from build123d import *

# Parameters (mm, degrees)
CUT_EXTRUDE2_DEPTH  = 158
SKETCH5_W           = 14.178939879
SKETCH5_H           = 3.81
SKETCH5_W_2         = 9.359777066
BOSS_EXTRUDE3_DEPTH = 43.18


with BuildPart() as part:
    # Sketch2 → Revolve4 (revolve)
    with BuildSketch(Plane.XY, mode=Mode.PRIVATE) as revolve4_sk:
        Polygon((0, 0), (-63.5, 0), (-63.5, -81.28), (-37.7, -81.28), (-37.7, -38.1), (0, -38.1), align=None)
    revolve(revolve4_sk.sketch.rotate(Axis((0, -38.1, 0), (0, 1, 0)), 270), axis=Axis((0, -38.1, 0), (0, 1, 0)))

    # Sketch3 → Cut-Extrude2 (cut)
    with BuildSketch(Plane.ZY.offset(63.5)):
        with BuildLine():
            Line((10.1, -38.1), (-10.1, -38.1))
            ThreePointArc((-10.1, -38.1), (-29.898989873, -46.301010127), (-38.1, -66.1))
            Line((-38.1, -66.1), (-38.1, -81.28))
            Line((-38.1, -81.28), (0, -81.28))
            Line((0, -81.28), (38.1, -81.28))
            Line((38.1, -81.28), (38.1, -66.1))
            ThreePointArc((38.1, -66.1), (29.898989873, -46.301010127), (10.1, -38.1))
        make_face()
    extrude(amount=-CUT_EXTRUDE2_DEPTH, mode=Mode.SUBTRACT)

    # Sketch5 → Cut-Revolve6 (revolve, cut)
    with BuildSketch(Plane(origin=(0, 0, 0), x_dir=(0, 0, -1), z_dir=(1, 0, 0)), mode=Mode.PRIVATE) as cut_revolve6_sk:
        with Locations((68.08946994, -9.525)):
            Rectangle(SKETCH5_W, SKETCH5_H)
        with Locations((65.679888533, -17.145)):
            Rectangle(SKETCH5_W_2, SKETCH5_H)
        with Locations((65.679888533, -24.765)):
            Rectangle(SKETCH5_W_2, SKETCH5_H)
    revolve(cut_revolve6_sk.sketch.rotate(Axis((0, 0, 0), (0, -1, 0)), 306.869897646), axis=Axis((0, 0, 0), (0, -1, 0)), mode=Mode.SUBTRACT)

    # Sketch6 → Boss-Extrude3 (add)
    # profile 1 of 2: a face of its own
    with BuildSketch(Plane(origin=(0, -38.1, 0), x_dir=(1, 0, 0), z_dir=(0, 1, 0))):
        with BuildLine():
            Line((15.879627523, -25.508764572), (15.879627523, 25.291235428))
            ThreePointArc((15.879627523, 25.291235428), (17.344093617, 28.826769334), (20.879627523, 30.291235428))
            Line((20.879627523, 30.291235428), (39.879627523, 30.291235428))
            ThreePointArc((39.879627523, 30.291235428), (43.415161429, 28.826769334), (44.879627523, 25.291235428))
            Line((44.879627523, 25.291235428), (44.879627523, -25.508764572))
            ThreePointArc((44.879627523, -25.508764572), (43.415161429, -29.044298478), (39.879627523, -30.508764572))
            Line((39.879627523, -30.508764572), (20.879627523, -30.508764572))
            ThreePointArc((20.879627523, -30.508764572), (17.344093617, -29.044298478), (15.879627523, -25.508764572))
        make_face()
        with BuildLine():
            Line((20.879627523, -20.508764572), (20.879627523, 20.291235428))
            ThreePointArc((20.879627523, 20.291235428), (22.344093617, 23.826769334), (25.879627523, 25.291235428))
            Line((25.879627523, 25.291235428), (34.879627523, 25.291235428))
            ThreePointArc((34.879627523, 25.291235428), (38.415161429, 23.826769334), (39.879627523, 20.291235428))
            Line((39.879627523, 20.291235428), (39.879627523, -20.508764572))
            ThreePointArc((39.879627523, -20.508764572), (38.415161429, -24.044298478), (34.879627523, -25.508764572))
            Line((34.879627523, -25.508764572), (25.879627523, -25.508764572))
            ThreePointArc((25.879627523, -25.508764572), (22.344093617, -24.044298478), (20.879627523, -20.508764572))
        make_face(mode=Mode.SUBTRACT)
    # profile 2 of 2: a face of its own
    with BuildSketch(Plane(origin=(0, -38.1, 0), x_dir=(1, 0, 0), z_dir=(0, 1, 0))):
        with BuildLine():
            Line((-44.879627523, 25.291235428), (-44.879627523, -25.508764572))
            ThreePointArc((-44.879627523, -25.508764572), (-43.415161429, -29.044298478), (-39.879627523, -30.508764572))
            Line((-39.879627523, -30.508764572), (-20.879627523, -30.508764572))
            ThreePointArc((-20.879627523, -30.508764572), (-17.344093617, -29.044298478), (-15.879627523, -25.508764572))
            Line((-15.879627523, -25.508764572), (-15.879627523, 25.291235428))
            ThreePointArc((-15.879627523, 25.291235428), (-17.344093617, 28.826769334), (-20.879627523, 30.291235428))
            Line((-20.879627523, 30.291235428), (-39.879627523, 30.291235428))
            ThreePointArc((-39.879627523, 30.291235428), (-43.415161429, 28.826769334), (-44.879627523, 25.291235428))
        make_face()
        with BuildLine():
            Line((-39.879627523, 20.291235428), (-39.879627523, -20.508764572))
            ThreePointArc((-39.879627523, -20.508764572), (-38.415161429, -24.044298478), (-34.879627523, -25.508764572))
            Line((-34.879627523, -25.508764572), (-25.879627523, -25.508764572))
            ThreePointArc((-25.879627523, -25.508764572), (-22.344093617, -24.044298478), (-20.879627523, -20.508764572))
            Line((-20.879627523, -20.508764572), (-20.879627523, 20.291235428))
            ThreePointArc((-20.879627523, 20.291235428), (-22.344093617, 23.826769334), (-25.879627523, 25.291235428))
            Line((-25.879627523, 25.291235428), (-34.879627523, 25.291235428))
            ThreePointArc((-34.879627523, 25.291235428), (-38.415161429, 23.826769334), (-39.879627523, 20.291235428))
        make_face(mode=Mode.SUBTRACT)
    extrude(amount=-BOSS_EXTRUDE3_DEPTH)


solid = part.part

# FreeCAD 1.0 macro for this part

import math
import FreeCAD as App
import Part
import Sketcher

doc = App.newDocument("Part")
body = doc.addObject("PartDesign::Body", "Body")

# Sketch on XY plane
sketch1 = body.newObject("Sketcher::SketchObject", "Sketch")
sketch1.AttachmentSupport = (doc.getObject("XY_Plane"), [""])
sketch1.MapMode = "FlatFace"
sketch1.addGeometry([
    Part.LineSegment(App.Vector(0, 0, 0), App.Vector(-64, 0, 0)),  # 0
    Part.LineSegment(App.Vector(-64, 0, 0), App.Vector(-64, -81, 0)),  # 1
    Part.LineSegment(App.Vector(-64, -81, 0), App.Vector(-38, -81, 0)),  # 2
    Part.LineSegment(App.Vector(-38, -81, 0), App.Vector(-38, -38, 0)),  # 3
    Part.LineSegment(App.Vector(-38, -38, 0), App.Vector(0, -38, 0)),  # 4
    Part.LineSegment(App.Vector(0, -38, 0), App.Vector(0, 0, 0)),  # 5
], False)
sketch1.addConstraint([
    Sketcher.Constraint("Coincident", 0, 2, 1, 1),
    Sketcher.Constraint("Coincident", 1, 2, 2, 1),
    Sketcher.Constraint("Coincident", 2, 2, 3, 1),
    Sketcher.Constraint("Coincident", 3, 2, 4, 1),
    Sketcher.Constraint("Coincident", 4, 2, 5, 1),
    Sketcher.Constraint("Coincident", 5, 2, 0, 1),
    Sketcher.Constraint("Horizontal", 0),
    Sketcher.Constraint("Vertical", 1),
    Sketcher.Constraint("Horizontal", 2),
    Sketcher.Constraint("Vertical", 3),
    Sketcher.Constraint("Horizontal", 4),
    Sketcher.Constraint("Vertical", 5),
    Sketcher.Constraint("Coincident", 5, 2, -1, 1),
    Sketcher.Constraint("DistanceX", 0, 2, 0, 1, 63.5),
    Sketcher.Constraint("DistanceX", 2, 1, 2, 2, 25.8),
    Sketcher.Constraint("DistanceY", 5, 1, 5, 2, 38.1),
    Sketcher.Constraint("DistanceY", 1, 2, 1, 1, 81.28),
])
revolution = body.newObject("PartDesign::Revolution", "Revolution")
revolution.Profile = sketch1
revolution.ReferenceAxis = (sketch1, ["V_Axis"])
revolution.Angle = 360

# Sketch on YZ plane
sketch2 = body.newObject("Sketcher::SketchObject", "Sketch001")
sketch2.AttachmentSupport = (doc.getObject("YZ_Plane"), [""])
sketch2.MapMode = "FlatFace"
sketch2.AttachmentOffset = App.Placement(App.Vector(0, 0, -63.5), App.Rotation())
sketch2.addGeometry([
    Part.LineSegment(App.Vector(-38, 10, 0), App.Vector(-38, -10, 0)),  # 0
    Part.ArcOfCircle(Part.Circle(App.Vector(-66, -10, 0), App.Vector(0, 0, 1), 28), math.radians(-90), math.radians(0)),  # 1
    Part.LineSegment(App.Vector(-66, -38, 0), App.Vector(-81, -38, 0)),  # 2
    Part.LineSegment(App.Vector(-81, -38, 0), App.Vector(-81, 38, 0)),  # 3
    Part.LineSegment(App.Vector(-81, 38, 0), App.Vector(-66, 38, 0)),  # 4
    Part.ArcOfCircle(Part.Circle(App.Vector(-66, 10, 0), App.Vector(0, 0, 1), 28), math.radians(0), math.radians(90)),  # 5
], False)
sketch2.addConstraint([
    Sketcher.Constraint("Tangent", 0, 2, 1, 2),
    Sketcher.Constraint("Tangent", 1, 1, 2, 1),
    Sketcher.Constraint("Coincident", 2, 2, 3, 1),
    Sketcher.Constraint("Coincident", 3, 2, 4, 1),
    Sketcher.Constraint("Tangent", 4, 2, 5, 2),
    Sketcher.Constraint("Tangent", 5, 1, 0, 1),
    Sketcher.Constraint("Vertical", 0),
    Sketcher.Constraint("Horizontal", 2),
    Sketcher.Constraint("Vertical", 3),
    Sketcher.Constraint("Horizontal", 4),
    Sketcher.Constraint("Equal", 1, 5),
    Sketcher.Constraint("Radius", 1, 28.0),
    Sketcher.Constraint("DistanceY", 0, 2, 0, 1, 20.2),
    Sketcher.Constraint("DistanceX", 2, 2, 2, 1, 15.18),
    Sketcher.Constraint("DistanceX", 1, 3, -1, 1, 66.1),
    Sketcher.Constraint("DistanceY", 1, 3, -1, 1, 10.1),
])
pocket1 = body.newObject("PartDesign::Pocket", "Pocket")
pocket1.Profile = sketch2
pocket1.Length = 158
pocket1.Reversed = True

# Sketch on YZ plane
sketch3 = body.newObject("Sketcher::SketchObject", "Sketch002")
sketch3.AttachmentSupport = (doc.getObject("YZ_Plane"), [""])
sketch3.MapMode = "FlatFace"
sketch3.addGeometry([
    Part.LineSegment(App.Vector(-7.6, -61, 0), App.Vector(-11.4, -61, 0)),  # 0
    Part.LineSegment(App.Vector(-11.4, -61, 0), App.Vector(-11.4, -75.2, 0)),  # 1
    Part.LineSegment(App.Vector(-11.4, -75.2, 0), App.Vector(-7.6, -75.2, 0)),  # 2
    Part.LineSegment(App.Vector(-7.6, -75.2, 0), App.Vector(-7.6, -61, 0)),  # 3
    Part.LineSegment(App.Vector(-15.2, -61, 0), App.Vector(-19.1, -61, 0)),  # 4
    Part.LineSegment(App.Vector(-19.1, -61, 0), App.Vector(-19.1, -70.4, 0)),  # 5
    Part.LineSegment(App.Vector(-19.1, -70.4, 0), App.Vector(-15.2, -70.4, 0)),  # 6
    Part.LineSegment(App.Vector(-15.2, -70.4, 0), App.Vector(-15.2, -61, 0)),  # 7
    Part.LineSegment(App.Vector(-22.9, -61, 0), App.Vector(-26.7, -61, 0)),  # 8
    Part.LineSegment(App.Vector(-26.7, -61, 0), App.Vector(-26.7, -70.4, 0)),  # 9
    Part.LineSegment(App.Vector(-26.7, -70.4, 0), App.Vector(-22.9, -70.4, 0)),  # 10
    Part.LineSegment(App.Vector(-22.9, -70.4, 0), App.Vector(-22.9, -61, 0)),  # 11
], False)
sketch3.addConstraint([
    Sketcher.Constraint("Coincident", 0, 2, 1, 1),
    Sketcher.Constraint("Coincident", 1, 2, 2, 1),
    Sketcher.Constraint("Coincident", 2, 2, 3, 1),
    Sketcher.Constraint("Coincident", 3, 2, 0, 1),
    Sketcher.Constraint("Coincident", 4, 2, 5, 1),
    Sketcher.Constraint("Coincident", 5, 2, 6, 1),
    Sketcher.Constraint("Coincident", 6, 2, 7, 1),
    Sketcher.Constraint("Coincident", 7, 2, 4, 1),
    Sketcher.Constraint("Coincident", 8, 2, 9, 1),
    Sketcher.Constraint("Coincident", 9, 2, 10, 1),
    Sketcher.Constraint("Coincident", 10, 2, 11, 1),
    Sketcher.Constraint("Coincident", 11, 2, 8, 1),
    Sketcher.Constraint("Horizontal", 0),
    Sketcher.Constraint("Vertical", 1),
    Sketcher.Constraint("Horizontal", 2),
    Sketcher.Constraint("Vertical", 3),
    Sketcher.Constraint("Horizontal", 4),
    Sketcher.Constraint("Vertical", 5),
    Sketcher.Constraint("Horizontal", 6),
    Sketcher.Constraint("Vertical", 7),
    Sketcher.Constraint("Horizontal", 8),
    Sketcher.Constraint("Vertical", 9),
    Sketcher.Constraint("Horizontal", 10),
    Sketcher.Constraint("Vertical", 11),
    Sketcher.Constraint("Horizontal", 3, 2, 4, 2),
    Sketcher.Constraint("Horizontal", 7, 2, 8, 2),
    Sketcher.Constraint("Horizontal", 6, 2, 9, 2),
    Sketcher.Constraint("Equal", 2, 4),
    Sketcher.Constraint("Equal", 6, 8),
    Sketcher.Constraint("DistanceY", 0, 2, -1, 1, 61.0),
    Sketcher.Constraint("DistanceX", 0, 2, 0, 1, 3.81),
    Sketcher.Constraint("DistanceX", 0, 2, -1, 1, 11.43),
    Sketcher.Constraint("DistanceX", 4, 2, -1, 1, 19.05),
    Sketcher.Constraint("DistanceX", 8, 2, -1, 1, 26.67),
    Sketcher.Constraint("DistanceY", 1, 2, 1, 1, 14.17894),
    Sketcher.Constraint("DistanceY", 5, 2, 5, 1, 9.359777),
])
groove = body.newObject("PartDesign::Groove", "Groove")
groove.Profile = sketch3
groove.ReferenceAxis = (sketch3, ["H_Axis"])
groove.Angle = 360

# Sketch on XZ plane
sketch4 = body.newObject("Sketcher::SketchObject", "Sketch003")
sketch4.AttachmentSupport = (doc.getObject("XZ_Plane"), [""])
sketch4.MapMode = "FlatFace"
sketch4.AttachmentOffset = App.Placement(App.Vector(0, 0, 38.1), App.Rotation())
sketch4.addGeometry([
    Part.LineSegment(App.Vector(16, -25, 0), App.Vector(16, 26, 0)),  # 0
    Part.ArcOfCircle(Part.Circle(App.Vector(21, 26, 0), App.Vector(0, 0, 1), 5), math.radians(90), math.radians(180)),  # 1
    Part.LineSegment(App.Vector(21, 31, 0), App.Vector(40, 31, 0)),  # 2
    Part.ArcOfCircle(Part.Circle(App.Vector(40, 26, 0), App.Vector(0, 0, 1), 5), math.radians(0), math.radians(90)),  # 3
    Part.LineSegment(App.Vector(45, 26, 0), App.Vector(45, -25, 0)),  # 4
    Part.ArcOfCircle(Part.Circle(App.Vector(40, -25, 0), App.Vector(0, 0, 1), 5), math.radians(-90), math.radians(0)),  # 5
    Part.LineSegment(App.Vector(40, -30, 0), App.Vector(21, -30, 0)),  # 6
    Part.ArcOfCircle(Part.Circle(App.Vector(21, -25, 0), App.Vector(0, 0, 1), 5), math.radians(180), math.radians(270)),  # 7
    Part.LineSegment(App.Vector(21, 21, 0), App.Vector(21, -20, 0)),  # 8
    Part.ArcOfCircle(Part.Circle(App.Vector(26, -20, 0), App.Vector(0, 0, 1), 5), math.radians(180), math.radians(270)),  # 9
    Part.LineSegment(App.Vector(26, -25, 0), App.Vector(35, -25, 0)),  # 10
    Part.ArcOfCircle(Part.Circle(App.Vector(35, -20, 0), App.Vector(0, 0, 1), 5), math.radians(-90), math.radians(0)),  # 11
    Part.LineSegment(App.Vector(40, -20, 0), App.Vector(40, 21, 0)),  # 12
    Part.ArcOfCircle(Part.Circle(App.Vector(35, 21, 0), App.Vector(0, 0, 1), 5), math.radians(0), math.radians(90)),  # 13
    Part.LineSegment(App.Vector(35, 26, 0), App.Vector(26, 26, 0)),  # 14
    Part.ArcOfCircle(Part.Circle(App.Vector(26, 21, 0), App.Vector(0, 0, 1), 5), math.radians(90), math.radians(180)),  # 15
    Part.LineSegment(App.Vector(-45, -25, 0), App.Vector(-45, 26, 0)),  # 16
    Part.ArcOfCircle(Part.Circle(App.Vector(-40, 26, 0), App.Vector(0, 0, 1), 5), math.radians(90), math.radians(180)),  # 17
    Part.LineSegment(App.Vector(-40, 31, 0), App.Vector(-21, 31, 0)),  # 18
    Part.ArcOfCircle(Part.Circle(App.Vector(-21, 26, 0), App.Vector(0, 0, 1), 5), math.radians(0), math.radians(90)),  # 19
    Part.LineSegment(App.Vector(-16, 26, 0), App.Vector(-16, -25, 0)),  # 20
    Part.ArcOfCircle(Part.Circle(App.Vector(-21, -25, 0), App.Vector(0, 0, 1), 5), math.radians(-90), math.radians(0)),  # 21
    Part.LineSegment(App.Vector(-21, -30, 0), App.Vector(-40, -30, 0)),  # 22
    Part.ArcOfCircle(Part.Circle(App.Vector(-40, -25, 0), App.Vector(0, 0, 1), 5), math.radians(180), math.radians(270)),  # 23
    Part.LineSegment(App.Vector(-40, 21, 0), App.Vector(-40, -20, 0)),  # 24
    Part.ArcOfCircle(Part.Circle(App.Vector(-35, -20, 0), App.Vector(0, 0, 1), 5), math.radians(180), math.radians(270)),  # 25
    Part.LineSegment(App.Vector(-35, -25, 0), App.Vector(-26, -25, 0)),  # 26
    Part.ArcOfCircle(Part.Circle(App.Vector(-26, -20, 0), App.Vector(0, 0, 1), 5), math.radians(-90), math.radians(0)),  # 27
    Part.LineSegment(App.Vector(-21, -20, 0), App.Vector(-21, 21, 0)),  # 28
    Part.ArcOfCircle(Part.Circle(App.Vector(-26, 21, 0), App.Vector(0, 0, 1), 5), math.radians(0), math.radians(90)),  # 29
    Part.LineSegment(App.Vector(-26, 26, 0), App.Vector(-35, 26, 0)),  # 30
    Part.ArcOfCircle(Part.Circle(App.Vector(-35, 21, 0), App.Vector(0, 0, 1), 5), math.radians(90), math.radians(180)),  # 31
], False)
sketch4.addConstraint([
    Sketcher.Constraint("Tangent", 0, 2, 1, 2),
    Sketcher.Constraint("Tangent", 1, 1, 2, 1),
    Sketcher.Constraint("Tangent", 2, 2, 3, 2),
    Sketcher.Constraint("Tangent", 3, 1, 4, 1),
    Sketcher.Constraint("Tangent", 4, 2, 5, 2),
    Sketcher.Constraint("Tangent", 5, 1, 6, 1),
    Sketcher.Constraint("Tangent", 6, 2, 7, 2),
    Sketcher.Constraint("Tangent", 7, 1, 0, 1),
    Sketcher.Constraint("Tangent", 8, 2, 9, 1),
    Sketcher.Constraint("Tangent", 9, 2, 10, 1),
    Sketcher.Constraint("Tangent", 10, 2, 11, 1),
    Sketcher.Constraint("Tangent", 11, 2, 12, 1),
    Sketcher.Constraint("Tangent", 12, 2, 13, 1),
    Sketcher.Constraint("Tangent", 13, 2, 14, 1),
    Sketcher.Constraint("Tangent", 14, 2, 15, 1),
    Sketcher.Constraint("Tangent", 15, 2, 8, 1),
    Sketcher.Constraint("Tangent", 16, 2, 17, 2),
    Sketcher.Constraint("Tangent", 17, 1, 18, 1),
    Sketcher.Constraint("Tangent", 18, 2, 19, 2),
    Sketcher.Constraint("Tangent", 19, 1, 20, 1),
    Sketcher.Constraint("Tangent", 20, 2, 21, 2),
    Sketcher.Constraint("Tangent", 21, 1, 22, 1),
    Sketcher.Constraint("Tangent", 22, 2, 23, 2),
    Sketcher.Constraint("Tangent", 23, 1, 16, 1),
    Sketcher.Constraint("Tangent", 24, 2, 25, 1),
    Sketcher.Constraint("Tangent", 25, 2, 26, 1),
    Sketcher.Constraint("Tangent", 26, 2, 27, 1),
    Sketcher.Constraint("Tangent", 27, 2, 28, 1),
    Sketcher.Constraint("Tangent", 28, 2, 29, 1),
    Sketcher.Constraint("Tangent", 29, 2, 30, 1),
    Sketcher.Constraint("Tangent", 30, 2, 31, 1),
    Sketcher.Constraint("Tangent", 31, 2, 24, 1),
    Sketcher.Constraint("Vertical", 0),
    Sketcher.Constraint("Horizontal", 2),
    Sketcher.Constraint("Vertical", 4),
    Sketcher.Constraint("Horizontal", 6),
    Sketcher.Constraint("Vertical", 8),
    Sketcher.Constraint("Horizontal", 10),
    Sketcher.Constraint("Vertical", 12),
    Sketcher.Constraint("Horizontal", 14),
    Sketcher.Constraint("Vertical", 16),
    Sketcher.Constraint("Horizontal", 18),
    Sketcher.Constraint("Vertical", 20),
    Sketcher.Constraint("Horizontal", 22),
    Sketcher.Constraint("Vertical", 24),
    Sketcher.Constraint("Horizontal", 26),
    Sketcher.Constraint("Vertical", 28),
    Sketcher.Constraint("Horizontal", 30),
    Sketcher.Constraint("Equal", 1, 3),
    Sketcher.Constraint("Equal", 3, 5),
    Sketcher.Constraint("Equal", 5, 7),
    Sketcher.Constraint("Equal", 7, 9),
    Sketcher.Constraint("Equal", 9, 11),
    Sketcher.Constraint("Equal", 11, 13),
    Sketcher.Constraint("Equal", 13, 15),
    Sketcher.Constraint("Equal", 15, 17),
    Sketcher.Constraint("Equal", 17, 19),
    Sketcher.Constraint("Equal", 19, 21),
    Sketcher.Constraint("Equal", 21, 23),
    Sketcher.Constraint("Equal", 23, 25),
    Sketcher.Constraint("Equal", 25, 27),
    Sketcher.Constraint("Equal", 27, 29),
    Sketcher.Constraint("Equal", 29, 31),
    Sketcher.Constraint("Symmetric", 3, 3, 17, 3, -2),
    Sketcher.Constraint("Symmetric", 7, 3, 21, 3, -2),
    Sketcher.Constraint("Symmetric", 11, 3, 25, 3, -2),
    Sketcher.Constraint("Symmetric", 15, 3, 29, 3, -2),
    Sketcher.Constraint("Horizontal", 7, 1, 9, 2),
    Sketcher.Constraint("Horizontal", 3, 1, 13, 2),
    Sketcher.Constraint("Vertical", 6, 2, 8, 2),
    Sketcher.Constraint("Vertical", 5, 1, 11, 2),
    Sketcher.Constraint("Radius", 1, 5.0),
    Sketcher.Constraint("DistanceX", 2, 1, 2, 2, 19.0),
    Sketcher.Constraint("DistanceY", 0, 1, 0, 2, 50.8),
    Sketcher.Constraint("DistanceX", -1, 1, 1, 3, 20.879628),
    Sketcher.Constraint("DistanceY", -1, 1, 1, 3, 25.508765),
])
pad1 = body.newObject("PartDesign::Pad", "Pad")
pad1.Profile = sketch4
pad1.Length = 43.18

doc.recompute()
